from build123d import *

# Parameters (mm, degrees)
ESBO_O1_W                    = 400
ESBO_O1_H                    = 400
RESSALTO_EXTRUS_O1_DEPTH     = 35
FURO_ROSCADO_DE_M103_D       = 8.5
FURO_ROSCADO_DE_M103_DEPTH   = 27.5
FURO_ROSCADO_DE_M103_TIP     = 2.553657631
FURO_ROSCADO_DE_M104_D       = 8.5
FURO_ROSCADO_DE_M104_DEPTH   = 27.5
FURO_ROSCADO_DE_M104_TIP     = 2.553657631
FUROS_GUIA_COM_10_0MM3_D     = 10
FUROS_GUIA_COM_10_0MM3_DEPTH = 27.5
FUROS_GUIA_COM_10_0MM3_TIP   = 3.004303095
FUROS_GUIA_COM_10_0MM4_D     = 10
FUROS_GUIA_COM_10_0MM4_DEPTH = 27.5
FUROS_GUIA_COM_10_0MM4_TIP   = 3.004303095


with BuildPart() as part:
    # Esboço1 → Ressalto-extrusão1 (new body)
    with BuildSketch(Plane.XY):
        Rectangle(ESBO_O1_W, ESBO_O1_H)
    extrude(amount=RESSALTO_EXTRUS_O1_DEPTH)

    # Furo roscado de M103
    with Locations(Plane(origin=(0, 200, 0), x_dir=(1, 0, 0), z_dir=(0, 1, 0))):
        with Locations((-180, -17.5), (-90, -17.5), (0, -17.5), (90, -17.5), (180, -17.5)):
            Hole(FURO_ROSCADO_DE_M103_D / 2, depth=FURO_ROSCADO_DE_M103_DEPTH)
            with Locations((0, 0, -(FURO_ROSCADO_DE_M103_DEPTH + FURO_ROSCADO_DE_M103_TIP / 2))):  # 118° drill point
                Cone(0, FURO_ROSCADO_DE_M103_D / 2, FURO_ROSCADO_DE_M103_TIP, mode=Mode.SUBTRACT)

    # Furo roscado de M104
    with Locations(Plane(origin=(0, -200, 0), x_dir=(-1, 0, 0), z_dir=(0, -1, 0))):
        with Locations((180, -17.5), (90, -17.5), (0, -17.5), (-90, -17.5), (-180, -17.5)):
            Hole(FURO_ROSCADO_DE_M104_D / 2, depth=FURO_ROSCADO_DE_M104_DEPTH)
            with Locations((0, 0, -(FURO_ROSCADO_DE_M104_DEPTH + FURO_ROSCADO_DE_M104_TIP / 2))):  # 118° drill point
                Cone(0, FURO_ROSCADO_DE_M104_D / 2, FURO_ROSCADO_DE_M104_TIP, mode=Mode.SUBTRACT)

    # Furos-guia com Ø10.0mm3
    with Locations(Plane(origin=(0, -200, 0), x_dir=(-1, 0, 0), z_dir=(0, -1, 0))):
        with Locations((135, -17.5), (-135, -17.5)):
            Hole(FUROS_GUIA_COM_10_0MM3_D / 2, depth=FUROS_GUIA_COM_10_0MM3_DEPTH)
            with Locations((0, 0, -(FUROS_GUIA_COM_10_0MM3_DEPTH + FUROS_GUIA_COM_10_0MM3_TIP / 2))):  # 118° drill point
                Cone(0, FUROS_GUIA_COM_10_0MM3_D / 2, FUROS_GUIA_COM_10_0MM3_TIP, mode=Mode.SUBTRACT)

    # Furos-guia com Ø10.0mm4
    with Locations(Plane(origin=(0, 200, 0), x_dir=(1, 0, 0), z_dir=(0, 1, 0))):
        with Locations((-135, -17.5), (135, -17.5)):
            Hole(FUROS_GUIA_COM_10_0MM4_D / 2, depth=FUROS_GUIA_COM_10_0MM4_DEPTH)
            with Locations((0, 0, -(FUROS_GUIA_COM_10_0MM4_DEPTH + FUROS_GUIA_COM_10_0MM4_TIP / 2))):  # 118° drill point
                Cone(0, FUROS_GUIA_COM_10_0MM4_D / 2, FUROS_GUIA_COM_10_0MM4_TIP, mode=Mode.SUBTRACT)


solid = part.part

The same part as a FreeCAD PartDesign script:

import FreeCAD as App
import Part
import Sketcher

doc = App.newDocument("Part")
body = doc.addObject("PartDesign::Body", "Body")

# Sketch on XY plane
sketch1 = body.newObject("Sketcher::SketchObject", "Sketch")
sketch1.AttachmentSupport = (doc.getObject("XY_Plane"), [""])
sketch1.MapMode = "FlatFace"
sketch1.addGeometry([
    Part.LineSegment(App.Vector(-200, 200, 0), App.Vector(-200, -200, 0)),
    Part.LineSegment(App.Vector(-200, -200, 0), App.Vector(200, -200, 0)),
    Part.LineSegment(App.Vector(200, -200, 0), App.Vector(200, 200, 0)),
    Part.LineSegment(App.Vector(200, 200, 0), App.Vector(-200, 200, 0)),
], False)
sketch1.addConstraint([
    Sketcher.Constraint("Coincident", 0, 2, 1, 1),
    Sketcher.Constraint("Coincident", 1, 2, 2, 1),
    Sketcher.Constraint("Coincident", 2, 2, 3, 1),
    Sketcher.Constraint("Coincident", 3, 2, 0, 1),
    Sketcher.Constraint("Vertical", 0),
    Sketcher.Constraint("Horizontal", 1),
    Sketcher.Constraint("Vertical", 2),
    Sketcher.Constraint("Horizontal", 3),
    Sketcher.Constraint("Symmetric", 0, 2, 2, 2, -1, 1),
    Sketcher.Constraint("Equal", 3, 0),
    Sketcher.Constraint("DistanceX", 1, 1, 1, 2, 400.0),
])
pad1 = body.newObject("PartDesign::Pad", "Pad")
pad1.Profile = sketch1
pad1.Length = 35

# Sketch on XZ plane
sketch2 = body.newObject("Sketcher::SketchObject", "Sketch001")
sketch2.AttachmentSupport = (doc.getObject("XZ_Plane"), [""])
sketch2.MapMode = "FlatFace"
sketch2.AttachmentOffset = App.Placement(App.Vector(0, 0, -200), App.Rotation())
sketch2.addGeometry([
    Part.Circle(App.Vector(-180, 17.5, 0), App.Vector(0, 0, 1), 4.2),  # 0
    Part.Circle(App.Vector(-90, 17.5, 0), App.Vector(0, 0, 1), 4.2),  # 1
    Part.Circle(App.Vector(0, 17.5, 0), App.Vector(0, 0, 1), 4.2),  # 2
    Part.Circle(App.Vector(90, 17.5, 0), App.Vector(0, 0, 1), 4.2),  # 3
    Part.Circle(App.Vector(180, 17.5, 0), App.Vector(0, 0, 1), 4.2),  # 4
], False)
sketch2.addConstraint([
    Sketcher.Constraint("Equal", 0, 1),
    Sketcher.Constraint("Equal", 1, 2),
    Sketcher.Constraint("Equal", 2, 3),
    Sketcher.Constraint("Equal", 3, 4),
    Sketcher.Constraint("Symmetric", 1, 3, 3, 3, -2),
    Sketcher.Constraint("Symmetric", 0, 3, 4, 3, -2),
    Sketcher.Constraint("PointOnObject", 2, 3, -2),
    Sketcher.Constraint("Horizontal", 0, 3, 1, 3),
    Sketcher.Constraint("Horizontal", 1, 3, 2, 3),
    Sketcher.Constraint("Diameter", 0, 8.5),
    Sketcher.Constraint("DistanceX", 0, 3, -1, 1, 180.0),
    Sketcher.Constraint("DistanceX", 1, 3, -1, 1, 90.0),
    Sketcher.Constraint("DistanceY", -1, 1, 0, 3, 17.5),
])
doc.recompute()
hole = body.newObject("PartDesign::Hole", "Hole")
hole.Profile = sketch2
hole.ThreadType = "None"
hole.Diameter = 8.5
hole.DepthType = "Dimension"
hole.Depth = 27.5
hole.DrillPoint = "Angled"
hole.DrillPointAngle = 118
hole.Reversed = True

# Sketch on XZ plane
sketch3 = body.newObject("Sketcher::SketchObject", "Sketch002")
sketch3.AttachmentSupport = (doc.getObject("XZ_Plane"), [""])
sketch3.MapMode = "FlatFace"
sketch3.AttachmentOffset = App.Placement(App.Vector(0, 0, 200), App.Rotation())
sketch3.addGeometry([
    Part.Circle(App.Vector(-180, 17.5, 0), App.Vector(0, 0, 1), 4.2),  # 0
    Part.Circle(App.Vector(-90, 17.5, 0), App.Vector(0, 0, 1), 4.2),  # 1
    Part.Circle(App.Vector(0, 17.5, 0), App.Vector(0, 0, 1), 4.2),  # 2
    Part.Circle(App.Vector(90, 17.5, 0), App.Vector(0, 0, 1), 4.2),  # 3
    Part.Circle(App.Vector(180, 17.5, 0), App.Vector(0, 0, 1), 4.2),  # 4
], False)
sketch3.addConstraint([
    Sketcher.Constraint("Equal", 0, 1),
    Sketcher.Constraint("Equal", 1, 2),
    Sketcher.Constraint("Equal", 2, 3),
    Sketcher.Constraint("Equal", 3, 4),
    Sketcher.Constraint("Symmetric", 1, 3, 3, 3, -2),
    Sketcher.Constraint("Symmetric", 0, 3, 4, 3, -2),
    Sketcher.Constraint("PointOnObject", 2, 3, -2),
    Sketcher.Constraint("Horizontal", 0, 3, 1, 3),
    Sketcher.Constraint("Horizontal", 1, 3, 2, 3),
    Sketcher.Constraint("Diameter", 0, 8.5),
    Sketcher.Constraint("DistanceX", 0, 3, -1, 1, 180.0),
    Sketcher.Constraint("DistanceX", 1, 3, -1, 1, 90.0),
    Sketcher.Constraint("DistanceY", -1, 1, 0, 3, 17.5),
])
doc.recompute()
hole2 = body.newObject("PartDesign::Hole", "Hole001")
hole2.Profile = sketch3
hole2.ThreadType = "None"
hole2.Diameter = 8.5
hole2.DepthType = "Dimension"
hole2.Depth = 27.5
hole2.DrillPoint = "Angled"
hole2.DrillPointAngle = 118

# Sketch on XZ plane
sketch4 = body.newObject("Sketcher::SketchObject", "Sketch003")
sketch4.AttachmentSupport = (doc.getObject("XZ_Plane"), [""])
sketch4.MapMode = "FlatFace"
sketch4.AttachmentOffset = App.Placement(App.Vector(0, 0, 200), App.Rotation())
sketch4.addGeometry([
    Part.Circle(App.Vector(-135, 18, 0), App.Vector(0, 0, 1), 5),
    Part.Circle(App.Vector(135, 18, 0), App.Vector(0, 0, 1), 5),
], False)
sketch4.addConstraint([
    Sketcher.Constraint("Equal", 0, 1),
    Sketcher.Constraint("Symmetric", 0, 3, 1, 3, -2),
    Sketcher.Constraint("Diameter", 0, 10.0),
    Sketcher.Constraint("DistanceX", 0, 3, -1, 1, 135.0),
    Sketcher.Constraint("DistanceY", -1, 1, 0, 3, 17.5),
])
doc.recompute()
hole3 = body.newObject("PartDesign::Hole", "Hole002")
hole3.Profile = sketch4
hole3.ThreadType = "None"
hole3.Diameter = 10
hole3.DepthType = "Dimension"
hole3.Depth = 27.5
hole3.DrillPoint = "Angled"
hole3.DrillPointAngle = 118

# Sketch on XZ plane
sketch5 = body.newObject("Sketcher::SketchObject", "Sketch004")
sketch5.AttachmentSupport = (doc.getObject("XZ_Plane"), [""])
sketch5.MapMode = "FlatFace"
sketch5.AttachmentOffset = App.Placement(App.Vector(0, 0, -200), App.Rotation())
sketch5.addGeometry([
    Part.Circle(App.Vector(-135, 18, 0), App.Vector(0, 0, 1), 5),
    Part.Circle(App.Vector(135, 18, 0), App.Vector(0, 0, 1), 5),
], False)
sketch5.addConstraint([
    Sketcher.Constraint("Equal", 0, 1),
    Sketcher.Constraint("Symmetric", 0, 3, 1, 3, -2),
    Sketcher.Constraint("Diameter", 0, 10.0),
    Sketcher.Constraint("DistanceX", 0, 3, -1, 1, 135.0),
    Sketcher.Constraint("DistanceY", -1, 1, 0, 3, 17.5),
])
doc.recompute()
hole4 = body.newObject("PartDesign::Hole", "Hole003")
hole4.Profile = sketch5
hole4.ThreadType = "None"
hole4.Diameter = 10
hole4.DepthType = "Dimension"
hole4.Depth = 27.5
hole4.DrillPoint = "Angled"
hole4.DrillPointAngle = 118
hole4.Reversed = True

doc.recompute()
